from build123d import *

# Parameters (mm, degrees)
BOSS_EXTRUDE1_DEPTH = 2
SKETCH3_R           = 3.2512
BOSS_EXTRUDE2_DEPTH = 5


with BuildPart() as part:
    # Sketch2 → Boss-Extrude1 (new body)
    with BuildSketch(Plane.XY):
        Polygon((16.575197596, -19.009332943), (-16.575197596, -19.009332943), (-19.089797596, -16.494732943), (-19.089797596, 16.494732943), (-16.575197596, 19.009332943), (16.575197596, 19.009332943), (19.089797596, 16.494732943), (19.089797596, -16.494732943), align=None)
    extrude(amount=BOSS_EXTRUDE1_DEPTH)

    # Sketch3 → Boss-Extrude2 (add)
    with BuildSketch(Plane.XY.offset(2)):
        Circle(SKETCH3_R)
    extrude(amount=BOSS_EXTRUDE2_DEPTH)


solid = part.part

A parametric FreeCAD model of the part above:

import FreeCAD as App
import Part
import Sketcher

V = App.Vector


def add_polygon(sketch, points):
    """Adds a closed chain of lines whose ends are joined by coincident constraints."""
    first, n = sketch.GeometryCount, len(points)
    for a, b in zip(points, points[1:] + points[:1]):
        sketch.addGeometry(Part.LineSegment(App.Vector(*a, 0), App.Vector(*b, 0)), False)
    for i in range(n):
        sketch.addConstraint(Sketcher.Constraint("Coincident", first + i, 2, first + (i + 1) % n, 1))

doc = App.newDocument("Part")
params = doc.addObject("Spreadsheet::Sheet", "Params")
for row, (alias, value) in enumerate([
    ("pad1_length", "2 mm"),
    ("pad2_length", "5 mm"),
], start=1):
    params.set(f"A{row}", alias)
    params.set(f"B{row}", "=" + value)
    params.setAlias(f"B{row}", alias)

body = doc.addObject("PartDesign::Body", "Body")

# Sketch on XY plane
sketch1 = body.newObject("Sketcher::SketchObject", "Sketch")
sketch1.AttachmentSupport = (doc.getObject("XY_Plane"), [""])
sketch1.MapMode = "FlatFace"
add_polygon(sketch1, [(-16.575198, -19.009333), (16.575198, -19.009333), (19.089798, -16.494733), (19.089798, 16.494733), (16.575198, 19.009333), (-16.575198, 19.009333), (-19.089798, 16.494733), (-19.089798, -16.494733)])  # lines 0-7
sketch1.addConstraint([
    Sketcher.Constraint("Horizontal", 0),
    Sketcher.Constraint("Vertical", 2),
    Sketcher.Constraint("Horizontal", 4),
    Sketcher.Constraint("Vertical", 6),
    Sketcher.Constraint("Symmetric", 0, 2, 4, 2, -1, 1),
    Sketcher.Constraint("Symmetric", 1, 2, 5, 2, -1, 1),
    Sketcher.Constraint("Perpendicular", 1, 3),
    Sketcher.Constraint("Perpendicular", 5, 7),
    Sketcher.Constraint("Horizontal", 2, 2, 5, 2),
    Sketcher.Constraint("Horizontal", 1, 2, 6, 2),
    Sketcher.Constraint("Vertical", 0, 2, 3, 2),
    Sketcher.Constraint("DistanceX", 0, 2, 1, 2, 2.5146),
    Sketcher.Constraint("DistanceX", 0, 1, 0, 2, 33.150395),
    Sketcher.Constraint("DistanceY", 2, 1, 2, 2, 32.989466),
])
pad1 = body.newObject("PartDesign::Pad", "Pad")
pad1.Profile = sketch1
pad1.setExpression("Length", "Params.pad1_length")

# Sketch on XY plane
sketch2 = body.newObject("Sketcher::SketchObject", "Sketch001")
sketch2.AttachmentSupport = (doc.getObject("XY_Plane"), [""])
sketch2.MapMode = "FlatFace"
sketch2.AttachmentOffset = App.Placement(V(0, 0, 2), App.Rotation())
sketch2.addGeometry(Part.Circle(V(0, 0, 0), V(0, 0, 1), 3.2512), False)
sketch2.addConstraint([
    Sketcher.Constraint("Coincident", 0, 3, -1, 1),
    Sketcher.Constraint("Diameter", 0, 6.5024),
])
pad2 = body.newObject("PartDesign::Pad", "Pad001")
pad2.Profile = sketch2
pad2.setExpression("Length", "Params.pad2_length")

doc.recompute()
